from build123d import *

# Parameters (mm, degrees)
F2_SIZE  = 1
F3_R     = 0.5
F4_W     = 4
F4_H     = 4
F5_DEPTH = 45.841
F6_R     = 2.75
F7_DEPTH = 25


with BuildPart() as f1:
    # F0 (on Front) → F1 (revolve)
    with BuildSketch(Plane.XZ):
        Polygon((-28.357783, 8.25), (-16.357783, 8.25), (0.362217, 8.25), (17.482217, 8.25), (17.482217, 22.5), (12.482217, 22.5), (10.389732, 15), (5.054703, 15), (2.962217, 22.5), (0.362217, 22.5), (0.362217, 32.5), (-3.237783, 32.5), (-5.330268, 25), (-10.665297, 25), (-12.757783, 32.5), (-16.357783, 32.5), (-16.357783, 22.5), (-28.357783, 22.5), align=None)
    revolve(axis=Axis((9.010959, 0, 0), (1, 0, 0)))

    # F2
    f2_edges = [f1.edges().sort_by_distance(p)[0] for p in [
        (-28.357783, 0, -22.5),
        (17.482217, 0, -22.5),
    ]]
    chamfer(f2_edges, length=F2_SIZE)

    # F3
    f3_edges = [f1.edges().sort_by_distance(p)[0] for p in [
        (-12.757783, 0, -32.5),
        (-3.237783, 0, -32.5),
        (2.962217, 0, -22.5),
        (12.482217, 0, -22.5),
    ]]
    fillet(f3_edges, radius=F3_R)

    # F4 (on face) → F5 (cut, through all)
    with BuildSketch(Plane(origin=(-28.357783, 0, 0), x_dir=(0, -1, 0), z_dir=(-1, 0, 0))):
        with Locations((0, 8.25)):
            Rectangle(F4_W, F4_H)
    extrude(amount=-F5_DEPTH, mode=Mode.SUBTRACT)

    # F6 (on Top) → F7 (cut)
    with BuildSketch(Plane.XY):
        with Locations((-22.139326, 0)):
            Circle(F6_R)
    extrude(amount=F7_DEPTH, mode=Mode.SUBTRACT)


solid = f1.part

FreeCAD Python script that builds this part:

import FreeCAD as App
import Part
import Sketcher

V = App.Vector
Q = App.Units.Quantity


def edges_at(feature, points):
    """Names of the edges that pass closest to the given points."""
    edges = feature.Shape.Edges
    near = lambda p: min(range(len(edges)), key=lambda i: edges[i].distToShape(Part.Vertex(*p))[0])
    return sorted({f"Edge{near(p) + 1}" for p in points})

doc = App.newDocument("Part")
body = doc.addObject("PartDesign::Body", "Body")

# Sketch on XZ plane
sketch1 = doc.addObject("Sketcher::SketchObject", "Sketch")
body.addObject(sketch1)
sketch1.AttachmentSupport = (doc.XZ_Plane, [""])
sketch1.MapMode = "FlatFace"
sketch1.addGeometry([
    Part.LineSegment(V(-28.4, 8.2, 0), V(17.5, 8.2, 0)),  # 0
    Part.LineSegment(V(17.5, 8.2, 0), V(17.5, 22.5, 0)),  # 1
    Part.LineSegment(V(17.5, 22.5, 0), V(12.5, 22.5, 0)),  # 2
    Part.LineSegment(V(12.5, 22.5, 0), V(10.4, 15, 0)),  # 3
    Part.LineSegment(V(10.4, 15, 0), V(5.1, 15, 0)),  # 4
    Part.LineSegment(V(5.1, 15, 0), V(3, 22.5, 0)),  # 5
    Part.LineSegment(V(3, 22.5, 0), V(0.4, 22.5, 0)),  # 6
    Part.LineSegment(V(0.4, 22.5, 0), V(0.4, 32.5, 0)),  # 7
    Part.LineSegment(V(0.4, 32.5, 0), V(-3.2, 32.5, 0)),  # 8
    Part.LineSegment(V(-3.2, 32.5, 0), V(-5.3, 25, 0)),  # 9
    Part.LineSegment(V(-5.3, 25, 0), V(-10.7, 25, 0)),  # 10
    Part.LineSegment(V(-10.7, 25, 0), V(-12.8, 32.5, 0)),  # 11
    Part.LineSegment(V(-12.8, 32.5, 0), V(-16.4, 32.5, 0)),  # 12
    Part.LineSegment(V(-16.4, 32.5, 0), V(-16.4, 22.5, 0)),  # 13
    Part.LineSegment(V(-16.4, 22.5, 0), V(-28.4, 22.5, 0)),  # 14
    Part.LineSegment(V(-28.4, 22.5, 0), V(-28.4, 8.2, 0)),  # 15
], False)
sketch1.addConstraint([
    Sketcher.Constraint("Coincident", 0, 2, 1, 1),
    Sketcher.Constraint("Coincident", 1, 2, 2, 1),
    Sketcher.Constraint("Coincident", 2, 2, 3, 1),
    Sketcher.Constraint("Coincident", 3, 2, 4, 1),
    Sketcher.Constraint("Coincident", 4, 2, 5, 1),
    Sketcher.Constraint("Coincident", 5, 2, 6, 1),
    Sketcher.Constraint("Coincident", 6, 2, 7, 1),
    Sketcher.Constraint("Coincident", 7, 2, 8, 1),
    Sketcher.Constraint("Coincident", 8, 2, 9, 1),
    Sketcher.Constraint("Coincident", 9, 2, 10, 1),
    Sketcher.Constraint("Coincident", 10, 2, 11, 1),
    Sketcher.Constraint("Coincident", 11, 2, 12, 1),
    Sketcher.Constraint("Coincident", 12, 2, 13, 1),
    Sketcher.Constraint("Coincident", 13, 2, 14, 1),
    Sketcher.Constraint("Coincident", 14, 2, 15, 1),
    Sketcher.Constraint("Coincident", 15, 2, 0, 1),
    Sketcher.Constraint("Horizontal", 0),
    Sketcher.Constraint("Vertical", 1),
    Sketcher.Constraint("Horizontal", 2),
    Sketcher.Constraint("Horizontal", 4),
    Sketcher.Constraint("Horizontal", 6),
    Sketcher.Constraint("Vertical", 7),
    Sketcher.Constraint("Horizontal", 8),
    Sketcher.Constraint("Horizontal", 10),
    Sketcher.Constraint("Horizontal", 12),
    Sketcher.Constraint("Vertical", 13),
    Sketcher.Constraint("Horizontal", 14),
    Sketcher.Constraint("Vertical", 15),
    Sketcher.Constraint("Parallel", 3, 9),
    Sketcher.Constraint("Parallel", 5, 11),
    Sketcher.Constraint("Horizontal", 2, 2, 5, 2),
    Sketcher.Constraint("Horizontal", 8, 2, 11, 2),
    Sketcher.Constraint("Horizontal", 6, 2, 13, 2),
    Sketcher.Constraint("Equal", 4, 10),
    Sketcher.Constraint("Equal", 8, 12),
    Sketcher.Constraint("Equal", 3, 5),
    Sketcher.Constraint("Equal", 5, 9),
    Sketcher.Constraint("DistanceX", 2, 2, 2, 1, Q("5 mm")),
    Sketcher.Constraint("DistanceX", 14, 2, 14, 1, Q("12 mm")),
    Sketcher.Constraint("DistanceY", 7, 1, 7, 2, Q("10 mm")),
    Sketcher.Constraint("DistanceX", 6, 2, 6, 1, Q("2.6 mm")),
    Sketcher.Constraint("DistanceX", 8, 2, 8, 1, Q("3.6 mm")),
    Sketcher.Constraint("DistanceY", -1, 1, 3, 2, Q("15 mm")),
    Sketcher.Constraint("DistanceX", 0, 1, 0, 2, Q("45.84 mm")),
    Sketcher.Constraint("DistanceY", 1, 1, 1, 2, Q("14.25 mm")),
    Sketcher.Constraint("DistanceY", -1, 1, 1, 2, Q("22.5 mm")),
    Sketcher.Constraint("DistanceX", 4, 2, 4, 1, Q("5.335029 mm")),
    Sketcher.Constraint("DistanceX", 9, 2, -1, 1, Q("5.330268 mm")),
])
revolution = doc.addObject("PartDesign::Revolution", "Revolution")
body.addObject(revolution)
revolution.Profile = sketch1
revolution.ReferenceAxis = (sketch1, ["H_Axis"])
revolution.Angle = 360
doc.recompute()

chamfer = doc.addObject("PartDesign::Chamfer", "Chamfer")
body.addObject(chamfer)
chamfer.Base = (revolution, edges_at(revolution, [(-28.358, 0, -22.5), (17.482, 0, -22.5)]))
chamfer.Size = 1
doc.recompute()

fillet = doc.addObject("PartDesign::Fillet", "Fillet")
body.addObject(fillet)
fillet.Base = (chamfer, edges_at(chamfer, [
    (-12.758, 0, -32.5),
    (-3.238, 0, -32.5),
    (2.962, 0, -22.5),
    (12.482, 0, -22.5),
]))
fillet.Radius = 0.5

# Sketch on YZ plane
sketch2 = doc.addObject("Sketcher::SketchObject", "Sketch001")
body.addObject(sketch2)
sketch2.AttachmentSupport = (doc.YZ_Plane, [""])
sketch2.MapMode = "FlatFace"
sketch2.AttachmentOffset = App.Placement(V(0, 0, -28.357783), App.Rotation())
sketch2.addGeometry([
    Part.LineSegment(V(2, 10.2, 0), V(2, 6.2, 0)),
    Part.LineSegment(V(2, 6.2, 0), V(-2, 6.2, 0)),
    Part.LineSegment(V(-2, 6.2, 0), V(-2, 10.2, 0)),
    Part.LineSegment(V(-2, 10.2, 0), V(2, 10.2, 0)),
], False)
sketch2.addConstraint([
    Sketcher.Constraint("Coincident", 0, 2, 1, 1),
    Sketcher.Constraint("Coincident", 1, 2, 2, 1),
    Sketcher.Constraint("Coincident", 2, 2, 3, 1),
    Sketcher.Constraint("Coincident", 3, 2, 0, 1),
    Sketcher.Constraint("Vertical", 0),
    Sketcher.Constraint("Horizontal", 1),
    Sketcher.Constraint("Vertical", 2),
    Sketcher.Constraint("Horizontal", 3),
    Sketcher.Constraint("Equal", 3, 0),
    Sketcher.Constraint("DistanceX", 1, 2, 1, 1, Q("4 mm")),
    Sketcher.Constraint("DistanceX", -1, 1, 0, 2, Q("2 mm")),
    Sketcher.Constraint("DistanceY", -1, 1, 0, 2, Q("6.25 mm")),
])
pocket1 = doc.addObject("PartDesign::Pocket", "Pocket")
body.addObject(pocket1)
pocket1.Profile = sketch2
pocket1.Type = "ThroughAll"
pocket1.Reversed = True

# Sketch on XY plane
sketch3 = doc.addObject("Sketcher::SketchObject", "Sketch002")
body.addObject(sketch3)
sketch3.AttachmentSupport = (doc.XY_Plane, [""])
sketch3.MapMode = "FlatFace"
sketch3.addGeometry(Part.Circle(V(-22.1, 0, 0), V(0, 0, 1), 2.8), False)
sketch3.addConstraint([
    Sketcher.Constraint("PointOnObject", 0, 3, -1),
    Sketcher.Constraint("Diameter", 0, Q("5.5 mm")),
    Sketcher.Constraint("DistanceX", 0, 3, -1, 1, Q("22.139326 mm")),
])
pocket2 = doc.addObject("PartDesign::Pocket", "Pocket001")
body.addObject(pocket2)
pocket2.Profile = sketch3
pocket2.Length = 25
pocket2.Reversed = True

doc.recompute()
